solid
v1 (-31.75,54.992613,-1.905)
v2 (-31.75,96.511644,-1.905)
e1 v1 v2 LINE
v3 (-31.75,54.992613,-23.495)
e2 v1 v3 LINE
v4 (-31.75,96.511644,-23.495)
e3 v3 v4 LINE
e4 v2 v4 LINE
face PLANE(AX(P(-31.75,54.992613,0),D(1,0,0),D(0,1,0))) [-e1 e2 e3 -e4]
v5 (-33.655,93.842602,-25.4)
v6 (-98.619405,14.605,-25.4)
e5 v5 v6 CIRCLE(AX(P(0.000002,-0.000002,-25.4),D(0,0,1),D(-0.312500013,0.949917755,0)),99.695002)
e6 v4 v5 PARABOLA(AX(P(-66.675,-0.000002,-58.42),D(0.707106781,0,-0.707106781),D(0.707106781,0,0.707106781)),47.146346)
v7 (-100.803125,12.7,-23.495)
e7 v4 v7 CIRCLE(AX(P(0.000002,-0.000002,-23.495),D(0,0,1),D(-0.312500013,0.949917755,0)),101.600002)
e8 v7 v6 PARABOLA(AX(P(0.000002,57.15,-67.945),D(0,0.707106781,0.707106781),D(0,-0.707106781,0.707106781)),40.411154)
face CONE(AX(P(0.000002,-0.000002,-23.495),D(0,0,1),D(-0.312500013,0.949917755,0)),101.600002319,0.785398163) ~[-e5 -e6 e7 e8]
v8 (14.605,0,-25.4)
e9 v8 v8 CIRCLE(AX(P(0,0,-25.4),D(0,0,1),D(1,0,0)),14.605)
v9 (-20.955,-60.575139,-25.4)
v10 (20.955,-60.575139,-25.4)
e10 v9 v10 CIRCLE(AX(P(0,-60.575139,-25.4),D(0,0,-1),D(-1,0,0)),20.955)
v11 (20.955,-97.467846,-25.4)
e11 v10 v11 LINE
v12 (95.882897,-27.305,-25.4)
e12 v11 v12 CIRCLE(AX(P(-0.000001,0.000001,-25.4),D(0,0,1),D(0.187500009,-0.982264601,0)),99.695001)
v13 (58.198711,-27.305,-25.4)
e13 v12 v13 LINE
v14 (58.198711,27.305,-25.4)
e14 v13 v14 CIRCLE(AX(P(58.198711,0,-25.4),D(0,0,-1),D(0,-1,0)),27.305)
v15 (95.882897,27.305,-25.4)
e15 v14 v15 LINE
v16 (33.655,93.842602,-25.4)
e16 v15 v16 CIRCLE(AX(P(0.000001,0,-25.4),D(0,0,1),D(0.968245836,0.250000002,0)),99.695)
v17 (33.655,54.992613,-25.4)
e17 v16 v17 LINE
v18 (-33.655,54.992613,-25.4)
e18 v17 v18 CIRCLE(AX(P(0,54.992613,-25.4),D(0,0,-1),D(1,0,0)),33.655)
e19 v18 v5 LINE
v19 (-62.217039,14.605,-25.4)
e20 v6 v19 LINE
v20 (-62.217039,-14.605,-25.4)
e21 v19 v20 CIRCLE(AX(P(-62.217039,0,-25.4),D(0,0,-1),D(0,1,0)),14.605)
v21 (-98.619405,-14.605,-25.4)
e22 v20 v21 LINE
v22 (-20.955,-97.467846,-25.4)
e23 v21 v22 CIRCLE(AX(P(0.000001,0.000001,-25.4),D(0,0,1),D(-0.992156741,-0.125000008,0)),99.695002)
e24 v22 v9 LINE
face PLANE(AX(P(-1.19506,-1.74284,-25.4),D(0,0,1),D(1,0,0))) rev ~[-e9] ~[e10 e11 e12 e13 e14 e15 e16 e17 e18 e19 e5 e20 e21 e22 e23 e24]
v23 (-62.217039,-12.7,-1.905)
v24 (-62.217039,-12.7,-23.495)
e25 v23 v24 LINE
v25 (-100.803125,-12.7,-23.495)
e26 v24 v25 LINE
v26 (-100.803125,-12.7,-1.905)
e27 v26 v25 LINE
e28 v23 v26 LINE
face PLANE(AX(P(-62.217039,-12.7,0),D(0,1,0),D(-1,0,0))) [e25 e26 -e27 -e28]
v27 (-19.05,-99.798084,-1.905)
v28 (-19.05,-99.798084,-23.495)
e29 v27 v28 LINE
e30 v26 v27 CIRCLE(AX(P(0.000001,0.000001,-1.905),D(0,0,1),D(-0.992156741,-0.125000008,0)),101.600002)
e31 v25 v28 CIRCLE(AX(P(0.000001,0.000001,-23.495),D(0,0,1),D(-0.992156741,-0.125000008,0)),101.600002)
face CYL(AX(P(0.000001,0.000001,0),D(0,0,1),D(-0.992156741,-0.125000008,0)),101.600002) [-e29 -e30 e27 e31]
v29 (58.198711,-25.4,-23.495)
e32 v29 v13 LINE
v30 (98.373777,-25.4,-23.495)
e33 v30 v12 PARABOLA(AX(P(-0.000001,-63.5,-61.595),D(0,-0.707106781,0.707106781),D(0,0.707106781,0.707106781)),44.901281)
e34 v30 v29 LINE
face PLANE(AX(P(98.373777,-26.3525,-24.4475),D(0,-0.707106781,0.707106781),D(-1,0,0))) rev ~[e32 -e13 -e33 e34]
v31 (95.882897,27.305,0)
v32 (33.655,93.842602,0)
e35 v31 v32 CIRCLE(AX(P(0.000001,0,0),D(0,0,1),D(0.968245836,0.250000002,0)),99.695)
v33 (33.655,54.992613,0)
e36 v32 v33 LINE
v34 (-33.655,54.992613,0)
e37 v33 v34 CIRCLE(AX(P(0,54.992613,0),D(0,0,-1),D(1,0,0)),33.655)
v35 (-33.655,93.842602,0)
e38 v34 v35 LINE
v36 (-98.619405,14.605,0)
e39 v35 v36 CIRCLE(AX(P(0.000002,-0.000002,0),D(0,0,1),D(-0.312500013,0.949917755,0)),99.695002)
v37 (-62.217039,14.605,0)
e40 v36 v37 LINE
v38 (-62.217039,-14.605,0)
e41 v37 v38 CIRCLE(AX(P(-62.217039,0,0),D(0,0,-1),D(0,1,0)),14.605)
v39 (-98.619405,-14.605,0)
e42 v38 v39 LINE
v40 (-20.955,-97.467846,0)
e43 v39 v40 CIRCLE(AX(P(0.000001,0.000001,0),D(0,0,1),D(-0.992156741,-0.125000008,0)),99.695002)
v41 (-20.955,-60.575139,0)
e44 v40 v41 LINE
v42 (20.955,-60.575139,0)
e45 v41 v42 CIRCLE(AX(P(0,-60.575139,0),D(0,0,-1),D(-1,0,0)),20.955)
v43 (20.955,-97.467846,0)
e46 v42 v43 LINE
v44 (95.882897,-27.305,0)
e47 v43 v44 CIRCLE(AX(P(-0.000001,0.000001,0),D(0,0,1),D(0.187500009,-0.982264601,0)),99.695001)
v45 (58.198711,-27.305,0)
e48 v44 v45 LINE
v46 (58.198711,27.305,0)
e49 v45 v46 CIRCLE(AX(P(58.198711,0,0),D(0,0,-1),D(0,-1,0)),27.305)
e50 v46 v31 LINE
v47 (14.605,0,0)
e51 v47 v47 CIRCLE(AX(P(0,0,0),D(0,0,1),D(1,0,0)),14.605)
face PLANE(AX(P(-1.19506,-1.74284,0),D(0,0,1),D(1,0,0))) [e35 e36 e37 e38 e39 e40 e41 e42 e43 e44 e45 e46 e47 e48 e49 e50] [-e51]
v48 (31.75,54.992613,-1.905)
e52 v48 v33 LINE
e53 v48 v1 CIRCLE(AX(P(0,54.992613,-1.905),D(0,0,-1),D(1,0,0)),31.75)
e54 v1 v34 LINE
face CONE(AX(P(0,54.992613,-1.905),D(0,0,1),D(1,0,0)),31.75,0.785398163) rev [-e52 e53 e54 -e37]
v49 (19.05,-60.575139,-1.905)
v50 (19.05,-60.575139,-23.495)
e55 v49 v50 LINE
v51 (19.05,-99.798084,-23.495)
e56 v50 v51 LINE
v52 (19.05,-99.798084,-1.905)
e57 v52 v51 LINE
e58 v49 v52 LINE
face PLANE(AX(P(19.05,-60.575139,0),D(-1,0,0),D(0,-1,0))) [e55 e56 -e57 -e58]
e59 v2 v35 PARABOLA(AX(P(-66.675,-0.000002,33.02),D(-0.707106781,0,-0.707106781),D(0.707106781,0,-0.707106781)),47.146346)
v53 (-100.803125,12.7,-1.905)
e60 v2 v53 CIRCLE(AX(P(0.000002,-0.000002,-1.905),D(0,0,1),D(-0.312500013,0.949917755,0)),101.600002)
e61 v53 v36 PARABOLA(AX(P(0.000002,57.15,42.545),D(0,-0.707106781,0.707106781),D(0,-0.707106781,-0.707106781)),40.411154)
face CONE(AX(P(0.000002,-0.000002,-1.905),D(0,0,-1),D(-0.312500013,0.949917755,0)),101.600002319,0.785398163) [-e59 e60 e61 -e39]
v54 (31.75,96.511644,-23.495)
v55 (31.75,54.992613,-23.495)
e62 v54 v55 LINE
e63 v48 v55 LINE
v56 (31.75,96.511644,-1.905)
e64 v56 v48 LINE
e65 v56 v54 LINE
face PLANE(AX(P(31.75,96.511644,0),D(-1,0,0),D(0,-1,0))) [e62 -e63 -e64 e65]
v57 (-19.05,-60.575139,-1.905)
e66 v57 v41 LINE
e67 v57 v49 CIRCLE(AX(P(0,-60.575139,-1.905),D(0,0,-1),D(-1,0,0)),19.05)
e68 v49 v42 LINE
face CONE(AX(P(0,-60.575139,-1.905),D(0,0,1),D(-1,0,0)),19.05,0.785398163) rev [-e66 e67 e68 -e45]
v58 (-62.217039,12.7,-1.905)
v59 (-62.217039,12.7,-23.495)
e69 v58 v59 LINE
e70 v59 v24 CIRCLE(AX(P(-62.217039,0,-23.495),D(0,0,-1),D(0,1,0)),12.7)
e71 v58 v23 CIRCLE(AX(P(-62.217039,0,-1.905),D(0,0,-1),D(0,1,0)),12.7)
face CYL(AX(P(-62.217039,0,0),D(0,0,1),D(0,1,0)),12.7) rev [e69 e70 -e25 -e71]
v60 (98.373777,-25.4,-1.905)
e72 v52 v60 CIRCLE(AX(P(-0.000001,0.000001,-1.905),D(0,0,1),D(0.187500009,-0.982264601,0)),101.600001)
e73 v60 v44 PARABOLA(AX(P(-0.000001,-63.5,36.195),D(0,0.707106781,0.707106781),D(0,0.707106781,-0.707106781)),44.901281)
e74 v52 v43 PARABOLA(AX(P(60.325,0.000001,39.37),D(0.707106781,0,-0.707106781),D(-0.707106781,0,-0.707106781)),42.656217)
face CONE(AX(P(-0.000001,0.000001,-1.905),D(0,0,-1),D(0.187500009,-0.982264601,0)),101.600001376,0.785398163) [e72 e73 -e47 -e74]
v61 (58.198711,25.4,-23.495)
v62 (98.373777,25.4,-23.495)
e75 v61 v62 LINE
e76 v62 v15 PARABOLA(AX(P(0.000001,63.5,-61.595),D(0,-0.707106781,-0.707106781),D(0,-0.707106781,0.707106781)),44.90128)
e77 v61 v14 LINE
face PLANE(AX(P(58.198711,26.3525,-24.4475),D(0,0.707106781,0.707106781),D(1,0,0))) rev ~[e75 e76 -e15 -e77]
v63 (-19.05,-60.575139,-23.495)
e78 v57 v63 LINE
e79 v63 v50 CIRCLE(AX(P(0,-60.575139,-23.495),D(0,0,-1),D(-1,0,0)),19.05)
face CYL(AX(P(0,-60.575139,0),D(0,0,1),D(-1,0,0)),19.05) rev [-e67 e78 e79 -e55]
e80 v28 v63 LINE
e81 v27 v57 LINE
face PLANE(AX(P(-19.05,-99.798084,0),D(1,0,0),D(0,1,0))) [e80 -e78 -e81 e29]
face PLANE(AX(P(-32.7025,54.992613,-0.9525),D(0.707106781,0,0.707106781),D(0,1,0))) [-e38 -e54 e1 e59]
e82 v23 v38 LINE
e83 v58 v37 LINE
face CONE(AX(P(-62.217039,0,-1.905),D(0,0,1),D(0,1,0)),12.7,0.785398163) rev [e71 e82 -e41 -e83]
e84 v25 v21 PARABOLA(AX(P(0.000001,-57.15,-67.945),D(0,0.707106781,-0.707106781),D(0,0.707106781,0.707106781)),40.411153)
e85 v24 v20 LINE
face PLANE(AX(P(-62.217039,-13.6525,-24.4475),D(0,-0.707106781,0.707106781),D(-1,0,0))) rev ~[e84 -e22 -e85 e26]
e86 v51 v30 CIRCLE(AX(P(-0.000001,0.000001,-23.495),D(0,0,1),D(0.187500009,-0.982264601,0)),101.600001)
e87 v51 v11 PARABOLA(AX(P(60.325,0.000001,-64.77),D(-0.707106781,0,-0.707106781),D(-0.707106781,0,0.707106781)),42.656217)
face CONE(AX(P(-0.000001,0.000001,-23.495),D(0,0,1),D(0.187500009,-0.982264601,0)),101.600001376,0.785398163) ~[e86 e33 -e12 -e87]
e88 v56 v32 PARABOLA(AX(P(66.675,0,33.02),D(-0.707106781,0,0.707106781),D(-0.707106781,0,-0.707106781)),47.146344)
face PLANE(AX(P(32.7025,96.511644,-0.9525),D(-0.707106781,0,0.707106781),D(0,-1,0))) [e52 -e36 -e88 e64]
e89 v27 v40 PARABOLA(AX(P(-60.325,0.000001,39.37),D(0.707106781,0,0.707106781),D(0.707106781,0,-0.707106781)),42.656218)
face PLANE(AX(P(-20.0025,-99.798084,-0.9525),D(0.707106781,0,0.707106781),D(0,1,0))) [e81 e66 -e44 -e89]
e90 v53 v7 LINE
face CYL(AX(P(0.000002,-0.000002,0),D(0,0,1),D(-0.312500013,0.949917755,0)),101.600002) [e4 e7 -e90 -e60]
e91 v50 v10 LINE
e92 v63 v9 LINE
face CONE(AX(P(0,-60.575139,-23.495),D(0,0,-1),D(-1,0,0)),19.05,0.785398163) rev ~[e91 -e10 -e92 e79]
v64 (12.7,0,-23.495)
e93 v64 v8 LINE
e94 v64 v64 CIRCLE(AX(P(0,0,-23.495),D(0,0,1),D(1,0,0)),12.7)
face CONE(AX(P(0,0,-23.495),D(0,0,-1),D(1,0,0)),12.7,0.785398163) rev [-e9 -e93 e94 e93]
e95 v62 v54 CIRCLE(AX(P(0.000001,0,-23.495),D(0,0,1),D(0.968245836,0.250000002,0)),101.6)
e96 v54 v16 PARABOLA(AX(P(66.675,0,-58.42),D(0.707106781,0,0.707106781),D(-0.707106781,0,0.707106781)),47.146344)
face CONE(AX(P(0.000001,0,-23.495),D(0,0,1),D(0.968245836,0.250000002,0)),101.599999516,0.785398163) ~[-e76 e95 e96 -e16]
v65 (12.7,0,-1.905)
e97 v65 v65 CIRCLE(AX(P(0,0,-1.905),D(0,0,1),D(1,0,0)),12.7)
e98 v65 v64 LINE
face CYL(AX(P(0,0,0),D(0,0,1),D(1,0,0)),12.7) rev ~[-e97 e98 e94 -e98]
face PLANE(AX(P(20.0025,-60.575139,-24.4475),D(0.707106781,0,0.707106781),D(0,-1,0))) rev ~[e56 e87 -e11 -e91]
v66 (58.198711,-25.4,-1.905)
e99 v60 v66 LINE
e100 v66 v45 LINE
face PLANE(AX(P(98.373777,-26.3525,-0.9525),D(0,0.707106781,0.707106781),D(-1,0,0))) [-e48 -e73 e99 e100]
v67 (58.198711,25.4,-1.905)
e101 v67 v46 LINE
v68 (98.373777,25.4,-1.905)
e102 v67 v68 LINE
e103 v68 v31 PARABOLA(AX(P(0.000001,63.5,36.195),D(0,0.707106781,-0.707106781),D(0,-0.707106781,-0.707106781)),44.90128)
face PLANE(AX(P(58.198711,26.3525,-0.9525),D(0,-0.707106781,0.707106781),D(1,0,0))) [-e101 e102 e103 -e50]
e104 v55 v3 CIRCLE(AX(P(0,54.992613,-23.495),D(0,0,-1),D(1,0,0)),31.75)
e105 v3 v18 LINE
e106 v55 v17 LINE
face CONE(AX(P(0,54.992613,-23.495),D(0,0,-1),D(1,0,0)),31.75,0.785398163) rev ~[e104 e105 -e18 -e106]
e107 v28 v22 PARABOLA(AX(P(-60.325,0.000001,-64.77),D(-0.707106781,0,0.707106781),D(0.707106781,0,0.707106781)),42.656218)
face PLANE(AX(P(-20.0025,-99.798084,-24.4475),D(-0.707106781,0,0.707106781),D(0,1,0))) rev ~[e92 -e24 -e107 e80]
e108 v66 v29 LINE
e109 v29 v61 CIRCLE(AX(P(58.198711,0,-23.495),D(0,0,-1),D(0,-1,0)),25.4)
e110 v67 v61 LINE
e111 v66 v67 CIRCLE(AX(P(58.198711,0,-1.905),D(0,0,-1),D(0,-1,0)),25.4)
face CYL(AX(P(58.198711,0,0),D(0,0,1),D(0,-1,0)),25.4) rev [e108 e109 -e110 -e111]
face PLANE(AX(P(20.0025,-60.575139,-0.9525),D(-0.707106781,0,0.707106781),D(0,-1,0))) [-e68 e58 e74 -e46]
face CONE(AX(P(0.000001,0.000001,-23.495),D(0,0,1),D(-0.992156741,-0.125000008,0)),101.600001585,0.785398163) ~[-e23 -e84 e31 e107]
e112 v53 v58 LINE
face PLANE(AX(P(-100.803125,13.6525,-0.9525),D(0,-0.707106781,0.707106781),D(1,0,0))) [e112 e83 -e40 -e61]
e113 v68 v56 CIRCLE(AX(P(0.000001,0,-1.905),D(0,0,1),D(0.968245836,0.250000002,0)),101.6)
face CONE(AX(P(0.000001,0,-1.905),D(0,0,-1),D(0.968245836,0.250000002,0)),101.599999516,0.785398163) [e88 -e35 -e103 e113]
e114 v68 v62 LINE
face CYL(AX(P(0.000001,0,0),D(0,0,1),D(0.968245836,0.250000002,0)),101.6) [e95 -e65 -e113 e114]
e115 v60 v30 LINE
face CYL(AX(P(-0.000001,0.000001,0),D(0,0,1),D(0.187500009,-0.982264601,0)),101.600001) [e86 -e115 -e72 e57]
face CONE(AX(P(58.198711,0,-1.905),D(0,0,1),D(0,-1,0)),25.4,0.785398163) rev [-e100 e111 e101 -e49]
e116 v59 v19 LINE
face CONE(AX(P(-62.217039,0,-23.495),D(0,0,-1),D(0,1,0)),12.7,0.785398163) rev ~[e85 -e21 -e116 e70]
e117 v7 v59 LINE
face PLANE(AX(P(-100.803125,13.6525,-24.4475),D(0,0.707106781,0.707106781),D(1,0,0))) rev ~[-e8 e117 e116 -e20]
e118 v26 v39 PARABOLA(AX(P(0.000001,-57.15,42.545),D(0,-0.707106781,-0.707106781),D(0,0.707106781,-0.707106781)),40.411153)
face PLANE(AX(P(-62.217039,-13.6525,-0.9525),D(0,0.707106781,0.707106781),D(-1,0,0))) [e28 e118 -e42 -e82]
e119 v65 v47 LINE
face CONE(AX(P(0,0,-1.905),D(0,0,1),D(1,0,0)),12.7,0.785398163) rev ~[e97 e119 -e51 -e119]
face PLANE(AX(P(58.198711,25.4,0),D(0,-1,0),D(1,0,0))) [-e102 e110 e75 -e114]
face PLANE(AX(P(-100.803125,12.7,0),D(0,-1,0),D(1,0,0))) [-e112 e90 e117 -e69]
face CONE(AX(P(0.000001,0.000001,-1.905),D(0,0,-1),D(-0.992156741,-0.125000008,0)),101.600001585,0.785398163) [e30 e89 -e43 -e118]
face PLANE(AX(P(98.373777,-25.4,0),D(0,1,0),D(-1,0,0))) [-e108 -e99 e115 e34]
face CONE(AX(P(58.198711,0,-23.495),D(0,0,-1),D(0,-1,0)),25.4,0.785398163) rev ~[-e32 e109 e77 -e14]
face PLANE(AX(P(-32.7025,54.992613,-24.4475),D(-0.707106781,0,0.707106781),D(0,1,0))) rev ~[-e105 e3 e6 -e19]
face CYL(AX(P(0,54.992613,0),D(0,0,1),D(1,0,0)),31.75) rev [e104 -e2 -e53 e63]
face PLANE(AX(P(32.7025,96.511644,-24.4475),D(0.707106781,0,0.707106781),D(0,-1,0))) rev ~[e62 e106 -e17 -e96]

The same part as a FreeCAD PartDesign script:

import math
import FreeCAD as App
import Part
import Sketcher

V = App.Vector
Q = App.Units.Quantity


def edges_at(feature, points):
    """Names of the edges that pass closest to the given points."""
    edges = feature.Shape.Edges
    near = lambda p: min(range(len(edges)), key=lambda i: edges[i].distToShape(Part.Vertex(*p))[0])
    return sorted({f"Edge{near(p) + 1}" for p in points})

doc = App.newDocument("Part")
body = doc.addObject("PartDesign::Body", "Body")

sketch1 = body.newObject("Sketcher::SketchObject", "Sketch")
sketch1.AttachmentSupport = (doc.getObject("XY_Plane"), [""])
sketch1.MapMode = "FlatFace"
sketch1.addGeometry(Part.LineSegment(V(-32, 55, 0), V(-32, 97, 0)), False)
sketch1.addGeometry(Part.ArcOfCircle(Part.Circle(V(0, 0, 0), V(0, 0, 1), 102), math.radians(108), math.radians(173)), False)
sketch1.addGeometry(Part.LineSegment(V(-101, 13, 0), V(-62, 13, 0)), False)
sketch1.addGeometry(Part.ArcOfCircle(Part.Circle(V(-62, 0, 0), V(0, 0, 1), 13), math.radians(-90), math.radians(90)), False)
sketch1.addGeometry(Part.LineSegment(V(-62, -13, 0), V(-101, -13, 0)), False)
sketch1.addGeometry(Part.ArcOfCircle(Part.Circle(V(0, 0, 0), V(0, 0, 1), 102), math.radians(-173), math.radians(-101)), False)
sketch1.addGeometry(Part.LineSegment(V(-19, -100, 0), V(-19, -61, 0)), False)
sketch1.addGeometry(Part.ArcOfCircle(Part.Circle(V(0, -61, 0), V(0, 0, 1), 19), math.radians(0), math.radians(180)), False)
sketch1.addGeometry(Part.LineSegment(V(19, -61, 0), V(19, -100, 0)), False)
sketch1.addGeometry(Part.ArcOfCircle(Part.Circle(V(0, 0, 0), V(0, 0, 1), 102), math.radians(-79), math.radians(-14)), False)
sketch1.addGeometry(Part.LineSegment(V(98, -25, 0), V(58, -25, 0)), False)
sketch1.addGeometry(Part.ArcOfCircle(Part.Circle(V(58, 0, 0), V(0, 0, 1), 25), math.radians(90), math.radians(270)), False)
sketch1.addGeometry(Part.LineSegment(V(58, 25, 0), V(98, 25, 0)), False)
sketch1.addGeometry(Part.ArcOfCircle(Part.Circle(V(0, 0, 0), V(0, 0, 1), 102), math.radians(14), math.radians(72)), False)
sketch1.addGeometry(Part.LineSegment(V(32, 97, 0), V(32, 55, 0)), False)
sketch1.addGeometry(Part.ArcOfCircle(Part.Circle(V(0, 55, 0), V(0, 0, 1), 32), math.radians(180), math.radians(360)), False)
sketch1.addGeometry(Part.Circle(V(0, 0, 0), V(0, 0, 1), 13), False)
sketch1.addConstraint(Sketcher.Constraint("Coincident", 0, 2, 1, 1))
sketch1.addConstraint(Sketcher.Constraint("Coincident", 1, 2, 2, 1))
sketch1.addConstraint(Sketcher.Constraint("Tangent", 2, 2, 3, 2))
sketch1.addConstraint(Sketcher.Constraint("Tangent", 3, 1, 4, 1))
sketch1.addConstraint(Sketcher.Constraint("Coincident", 4, 2, 5, 1))
sketch1.addConstraint(Sketcher.Constraint("Coincident", 5, 2, 6, 1))
sketch1.addConstraint(Sketcher.Constraint("Tangent", 6, 2, 7, 2))
sketch1.addConstraint(Sketcher.Constraint("Tangent", 7, 1, 8, 1))
sketch1.addConstraint(Sketcher.Constraint("Coincident", 8, 2, 9, 1))
sketch1.addConstraint(Sketcher.Constraint("Coincident", 9, 2, 10, 1))
sketch1.addConstraint(Sketcher.Constraint("Tangent", 10, 2, 11, 2))
sketch1.addConstraint(Sketcher.Constraint("Tangent", 11, 1, 12, 1))
sketch1.addConstraint(Sketcher.Constraint("Coincident", 12, 2, 13, 1))
sketch1.addConstraint(Sketcher.Constraint("Coincident", 13, 2, 14, 1))
sketch1.addConstraint(Sketcher.Constraint("Tangent", 14, 2, 15, 2))
sketch1.addConstraint(Sketcher.Constraint("Tangent", 15, 1, 0, 1))
sketch1.addConstraint(Sketcher.Constraint("Vertical", 0))
sketch1.addConstraint(Sketcher.Constraint("Horizontal", 2))
sketch1.addConstraint(Sketcher.Constraint("Horizontal", 4))
sketch1.addConstraint(Sketcher.Constraint("Vertical", 6))
sketch1.addConstraint(Sketcher.Constraint("Vertical", 8))
sketch1.addConstraint(Sketcher.Constraint("Horizontal", 10))
sketch1.addConstraint(Sketcher.Constraint("Horizontal", 12))
sketch1.addConstraint(Sketcher.Constraint("Vertical", 14))
sketch1.addConstraint(Sketcher.Constraint("Coincident", 1, 3, -1, 1))
sketch1.addConstraint(Sketcher.Constraint("Coincident", 5, 3, -1, 1))
sketch1.addConstraint(Sketcher.Constraint("Coincident", 9, 3, -1, 1))
sketch1.addConstraint(Sketcher.Constraint("Coincident", 13, 3, -1, 1))
sketch1.addConstraint(Sketcher.Constraint("Coincident", 16, 3, -1, 1))
sketch1.addConstraint(Sketcher.Constraint("Equal", 1, 5))
sketch1.addConstraint(Sketcher.Constraint("Equal", 5, 9))
sketch1.addConstraint(Sketcher.Constraint("Equal", 9, 13))
sketch1.addConstraint(Sketcher.Constraint("Equal", 3, 16))
sketch1.addConstraint(Sketcher.Constraint("PointOnObject", 3, 3, -1))
sketch1.addConstraint(Sketcher.Constraint("PointOnObject", 7, 3, -2))
sketch1.addConstraint(Sketcher.Constraint("PointOnObject", 11, 3, -1))
sketch1.addConstraint(Sketcher.Constraint("PointOnObject", 15, 3, -2))
sketch1.addConstraint(Sketcher.Constraint("Diameter", 16, Q("1 in")))
sketch1.addConstraint(Sketcher.Constraint("Radius", 1, Q("4.0000001 in")))
sketch1.addConstraint(Sketcher.Constraint("Radius", 11, Q("1 in")))
sketch1.addConstraint(Sketcher.Constraint("Radius", 7, Q("0.75 in")))
sketch1.addConstraint(Sketcher.Constraint("Radius", 15, Q("1.25 in")))
sketch1.addConstraint(Sketcher.Constraint("DistanceY", 0, 1, 0, 2, Q("41.519031 mm")))
sketch1.addConstraint(Sketcher.Constraint("DistanceX", 2, 1, 2, 2, Q("38.586086 mm")))
sketch1.addConstraint(Sketcher.Constraint("DistanceX", 10, 2, 10, 1, Q("40.175066 mm")))
sketch1.addConstraint(Sketcher.Constraint("DistanceY", 6, 1, 6, 2, Q("39.222945 mm")))
pad1 = body.newObject("PartDesign::Pad", "Pad")
pad1.Profile = sketch1
pad1.Length = Q("1 in")
pad1.Reversed = True
doc.recompute()

chamfer = body.newObject("PartDesign::Chamfer", "Chamfer")
chamfer.Base = (pad1, edges_at(pad1, [
    (-31.75, 75.752, 0),
    (-78.414, 64.606, 0),
    (-81.51, 12.7, 0),
    (-49.517, 0, 0),
    (-81.51, -12.7, 0),
    (-74.079, -69.533, 0),
    (-19.05, -80.187, 0),
    (0, -41.525, 0),
    (19.05, -80.187, 0),
    (69.504, -74.106, 0),
    (78.286, -25.4, 0),
    (32.799, 0, 0),
    (78.286, 25.4, 0),
    (74.144, 69.464, 0),
    (31.75, 75.752, 0),
    (0, 23.243, 0),
    (-12.7, 0, 0),
    (-31.75, 75.752, -25.4),
    (-78.414, 64.606, -25.4),
    (-81.51, 12.7, -25.4),
    (-49.517, 0, -25.4),
    (-81.51, -12.7, -25.4),
    (-74.079, -69.533, -25.4),
    (-19.05, -80.187, -25.4),
    (0, -41.525, -25.4),
    (19.05, -80.187, -25.4),
    (69.504, -74.106, -25.4),
    (78.286, -25.4, -25.4),
    (32.799, 0, -25.4),
    (78.286, 25.4, -25.4),
    (74.144, 69.464, -25.4),
    (31.75, 75.752, -25.4),
    (0, 23.243, -25.4),
    (-12.7, 0, -25.4),
]))
chamfer.ChamferType = "Two distances"
chamfer.Size = Q("0.075 in")
chamfer.Size2 = Q("0.075 in")

doc.recompute()
